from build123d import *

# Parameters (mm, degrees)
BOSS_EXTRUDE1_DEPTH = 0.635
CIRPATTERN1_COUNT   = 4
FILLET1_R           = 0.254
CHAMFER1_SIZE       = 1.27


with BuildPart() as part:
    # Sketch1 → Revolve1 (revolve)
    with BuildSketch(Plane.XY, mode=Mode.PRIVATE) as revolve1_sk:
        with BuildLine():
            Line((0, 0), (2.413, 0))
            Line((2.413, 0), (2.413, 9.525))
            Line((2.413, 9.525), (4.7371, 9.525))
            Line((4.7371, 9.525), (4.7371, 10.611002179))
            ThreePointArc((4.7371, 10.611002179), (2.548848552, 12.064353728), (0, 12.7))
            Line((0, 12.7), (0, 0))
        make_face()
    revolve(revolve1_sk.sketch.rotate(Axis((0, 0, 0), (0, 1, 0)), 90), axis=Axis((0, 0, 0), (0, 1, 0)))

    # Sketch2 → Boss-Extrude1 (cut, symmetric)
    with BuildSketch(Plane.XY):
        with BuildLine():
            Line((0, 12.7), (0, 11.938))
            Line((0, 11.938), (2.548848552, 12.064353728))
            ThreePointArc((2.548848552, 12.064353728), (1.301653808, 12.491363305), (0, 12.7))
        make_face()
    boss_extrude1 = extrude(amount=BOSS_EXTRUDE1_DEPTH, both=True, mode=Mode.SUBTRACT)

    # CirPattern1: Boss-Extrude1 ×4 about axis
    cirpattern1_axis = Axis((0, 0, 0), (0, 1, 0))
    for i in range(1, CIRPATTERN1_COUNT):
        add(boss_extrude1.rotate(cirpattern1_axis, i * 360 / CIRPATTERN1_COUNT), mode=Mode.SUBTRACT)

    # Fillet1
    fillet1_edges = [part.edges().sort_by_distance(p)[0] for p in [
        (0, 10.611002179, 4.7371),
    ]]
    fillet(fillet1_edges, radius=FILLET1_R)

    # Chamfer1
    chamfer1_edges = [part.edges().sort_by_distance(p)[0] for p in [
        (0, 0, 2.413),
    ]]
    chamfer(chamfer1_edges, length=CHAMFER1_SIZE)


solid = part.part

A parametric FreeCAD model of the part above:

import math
import FreeCAD as App
import Part
import Sketcher

V = App.Vector
Q = App.Units.Quantity


def edges_at(feature, points):
    """Names of the edges that pass closest to the given points."""
    edges = feature.Shape.Edges
    near = lambda p: min(range(len(edges)), key=lambda i: edges[i].distToShape(Part.Vertex(*p))[0])
    return sorted({f"Edge{near(p) + 1}" for p in points})

doc = App.newDocument("Part")
body = doc.addObject("PartDesign::Body", "Body")

# Sketch on XY plane
sketch1 = body.newObject("Sketcher::SketchObject", "Sketch")
sketch1.AttachmentSupport = (doc.getObject("XY_Plane"), [""])
sketch1.MapMode = "FlatFace"
sketch1.addGeometry([
    Part.LineSegment(V(0, 0, 0), V(2.4, 0, 0)),  # 0
    Part.LineSegment(V(2.4, 0, 0), V(2.4, 9.5, 0)),  # 1
    Part.LineSegment(V(2.4, 9.5, 0), V(4.7, 9.5, 0)),  # 2
    Part.LineSegment(V(4.7, 9.5, 0), V(4.7, 10.6, 0)),  # 3
    Part.ArcOfCircle(Part.Circle(V(-0.6, 5, 0), V(0, 0, 1), 7.7), math.radians(47), math.radians(86)),  # 4
    Part.LineSegment(V(0, 12.7, 0), V(0, 0, 0)),  # 5
], False)
sketch1.addConstraint([
    Sketcher.Constraint("Coincident", 0, 2, 1, 1),
    Sketcher.Constraint("Coincident", 1, 2, 2, 1),
    Sketcher.Constraint("Coincident", 2, 2, 3, 1),
    Sketcher.Constraint("Coincident", 3, 2, 4, 1),
    Sketcher.Constraint("Coincident", 4, 2, 5, 1),
    Sketcher.Constraint("Coincident", 5, 2, 0, 1),
    Sketcher.Constraint("Horizontal", 0),
    Sketcher.Constraint("Vertical", 1),
    Sketcher.Constraint("Horizontal", 2),
    Sketcher.Constraint("Vertical", 3),
    Sketcher.Constraint("Vertical", 5),
    Sketcher.Constraint("Coincident", 5, 2, -1, 1),
    Sketcher.Constraint("DistanceY", 5, 2, 5, 1, Q("0.5 in")),
    Sketcher.Constraint("Radius", 4, Q("0.304 in")),
    Sketcher.Constraint("DistanceX", 0, 1, 0, 2, Q("0.095 in")),
    Sketcher.Constraint("DistanceY", 1, 1, 1, 2, Q("0.375 in")),
    Sketcher.Constraint("DistanceX", 2, 1, 2, 2, Q("0.0915 in")),
    Sketcher.Constraint("DistanceY", 3, 1, 3, 2, Q("1.086002 mm")),
])
revolution = body.newObject("PartDesign::Revolution", "Revolution")
revolution.Profile = sketch1
revolution.ReferenceAxis = (sketch1, ["V_Axis"])
revolution.Angle = 360

# Sketch on XY plane
sketch2 = body.newObject("Sketcher::SketchObject", "Sketch001")
sketch2.AttachmentSupport = (doc.getObject("XY_Plane"), [""])
sketch2.MapMode = "FlatFace"
sketch2.addGeometry([
    Part.LineSegment(V(0, 12.7, 0), V(0, 11.9, 0)),
    Part.LineSegment(V(0, 11.9, 0), V(2.5, 12.1, 0)),
    Part.ArcOfCircle(Part.Circle(V(-0.6, 5, 0), V(0, 0, 1), 7.7), math.radians(66.2), math.radians(85.79)),
], False)
sketch2.addConstraint([
    Sketcher.Constraint("Coincident", 0, 2, 1, 1),
    Sketcher.Constraint("Coincident", 1, 2, 2, 1),
    Sketcher.Constraint("Coincident", 2, 2, 0, 1),
    Sketcher.Constraint("Vertical", 0),
    Sketcher.Constraint("PointOnObject", 0, 2, -2),
    Sketcher.Constraint("Radius", 2, Q("0.304 in")),
    Sketcher.Constraint("DistanceY", 0, 2, 0, 1, Q("0.03 in")),
    Sketcher.Constraint("DistanceY", -1, 1, 2, 2, Q("0.5 in")),
    Sketcher.Constraint("Distance", 1, Q("2.551978 mm")),
    Sketcher.Constraint("DistanceY", -1, 1, 2, 3, Q("4.999229 mm")),
])
pocket1 = body.newObject("PartDesign::Pocket", "Pocket")
pocket1.Profile = sketch2
pocket1.Length = Q("0.05 in")
pocket1.Midplane = True
doc.recompute()

polarpattern = body.newObject("PartDesign::PolarPattern", "PolarPattern")
polarpattern.Originals = [pocket1]
polarpattern.Axis = (doc.getObject("Y_Axis"), [""])
polarpattern.Angle = 360
polarpattern.Occurrences = 4
body.Tip = polarpattern
doc.recompute()

fillet = body.newObject("PartDesign::Fillet", "Fillet")
fillet.Base = (polarpattern, edges_at(polarpattern, [(0, 10.611, 4.737)]))
fillet.Radius = Q("0.01 in")
doc.recompute()

chamfer = body.newObject("PartDesign::Chamfer", "Chamfer")
chamfer.Base = (fillet, edges_at(fillet, [(0, 0, 2.413)]))
chamfer.Size = Q("0.05 in")

doc.recompute()
